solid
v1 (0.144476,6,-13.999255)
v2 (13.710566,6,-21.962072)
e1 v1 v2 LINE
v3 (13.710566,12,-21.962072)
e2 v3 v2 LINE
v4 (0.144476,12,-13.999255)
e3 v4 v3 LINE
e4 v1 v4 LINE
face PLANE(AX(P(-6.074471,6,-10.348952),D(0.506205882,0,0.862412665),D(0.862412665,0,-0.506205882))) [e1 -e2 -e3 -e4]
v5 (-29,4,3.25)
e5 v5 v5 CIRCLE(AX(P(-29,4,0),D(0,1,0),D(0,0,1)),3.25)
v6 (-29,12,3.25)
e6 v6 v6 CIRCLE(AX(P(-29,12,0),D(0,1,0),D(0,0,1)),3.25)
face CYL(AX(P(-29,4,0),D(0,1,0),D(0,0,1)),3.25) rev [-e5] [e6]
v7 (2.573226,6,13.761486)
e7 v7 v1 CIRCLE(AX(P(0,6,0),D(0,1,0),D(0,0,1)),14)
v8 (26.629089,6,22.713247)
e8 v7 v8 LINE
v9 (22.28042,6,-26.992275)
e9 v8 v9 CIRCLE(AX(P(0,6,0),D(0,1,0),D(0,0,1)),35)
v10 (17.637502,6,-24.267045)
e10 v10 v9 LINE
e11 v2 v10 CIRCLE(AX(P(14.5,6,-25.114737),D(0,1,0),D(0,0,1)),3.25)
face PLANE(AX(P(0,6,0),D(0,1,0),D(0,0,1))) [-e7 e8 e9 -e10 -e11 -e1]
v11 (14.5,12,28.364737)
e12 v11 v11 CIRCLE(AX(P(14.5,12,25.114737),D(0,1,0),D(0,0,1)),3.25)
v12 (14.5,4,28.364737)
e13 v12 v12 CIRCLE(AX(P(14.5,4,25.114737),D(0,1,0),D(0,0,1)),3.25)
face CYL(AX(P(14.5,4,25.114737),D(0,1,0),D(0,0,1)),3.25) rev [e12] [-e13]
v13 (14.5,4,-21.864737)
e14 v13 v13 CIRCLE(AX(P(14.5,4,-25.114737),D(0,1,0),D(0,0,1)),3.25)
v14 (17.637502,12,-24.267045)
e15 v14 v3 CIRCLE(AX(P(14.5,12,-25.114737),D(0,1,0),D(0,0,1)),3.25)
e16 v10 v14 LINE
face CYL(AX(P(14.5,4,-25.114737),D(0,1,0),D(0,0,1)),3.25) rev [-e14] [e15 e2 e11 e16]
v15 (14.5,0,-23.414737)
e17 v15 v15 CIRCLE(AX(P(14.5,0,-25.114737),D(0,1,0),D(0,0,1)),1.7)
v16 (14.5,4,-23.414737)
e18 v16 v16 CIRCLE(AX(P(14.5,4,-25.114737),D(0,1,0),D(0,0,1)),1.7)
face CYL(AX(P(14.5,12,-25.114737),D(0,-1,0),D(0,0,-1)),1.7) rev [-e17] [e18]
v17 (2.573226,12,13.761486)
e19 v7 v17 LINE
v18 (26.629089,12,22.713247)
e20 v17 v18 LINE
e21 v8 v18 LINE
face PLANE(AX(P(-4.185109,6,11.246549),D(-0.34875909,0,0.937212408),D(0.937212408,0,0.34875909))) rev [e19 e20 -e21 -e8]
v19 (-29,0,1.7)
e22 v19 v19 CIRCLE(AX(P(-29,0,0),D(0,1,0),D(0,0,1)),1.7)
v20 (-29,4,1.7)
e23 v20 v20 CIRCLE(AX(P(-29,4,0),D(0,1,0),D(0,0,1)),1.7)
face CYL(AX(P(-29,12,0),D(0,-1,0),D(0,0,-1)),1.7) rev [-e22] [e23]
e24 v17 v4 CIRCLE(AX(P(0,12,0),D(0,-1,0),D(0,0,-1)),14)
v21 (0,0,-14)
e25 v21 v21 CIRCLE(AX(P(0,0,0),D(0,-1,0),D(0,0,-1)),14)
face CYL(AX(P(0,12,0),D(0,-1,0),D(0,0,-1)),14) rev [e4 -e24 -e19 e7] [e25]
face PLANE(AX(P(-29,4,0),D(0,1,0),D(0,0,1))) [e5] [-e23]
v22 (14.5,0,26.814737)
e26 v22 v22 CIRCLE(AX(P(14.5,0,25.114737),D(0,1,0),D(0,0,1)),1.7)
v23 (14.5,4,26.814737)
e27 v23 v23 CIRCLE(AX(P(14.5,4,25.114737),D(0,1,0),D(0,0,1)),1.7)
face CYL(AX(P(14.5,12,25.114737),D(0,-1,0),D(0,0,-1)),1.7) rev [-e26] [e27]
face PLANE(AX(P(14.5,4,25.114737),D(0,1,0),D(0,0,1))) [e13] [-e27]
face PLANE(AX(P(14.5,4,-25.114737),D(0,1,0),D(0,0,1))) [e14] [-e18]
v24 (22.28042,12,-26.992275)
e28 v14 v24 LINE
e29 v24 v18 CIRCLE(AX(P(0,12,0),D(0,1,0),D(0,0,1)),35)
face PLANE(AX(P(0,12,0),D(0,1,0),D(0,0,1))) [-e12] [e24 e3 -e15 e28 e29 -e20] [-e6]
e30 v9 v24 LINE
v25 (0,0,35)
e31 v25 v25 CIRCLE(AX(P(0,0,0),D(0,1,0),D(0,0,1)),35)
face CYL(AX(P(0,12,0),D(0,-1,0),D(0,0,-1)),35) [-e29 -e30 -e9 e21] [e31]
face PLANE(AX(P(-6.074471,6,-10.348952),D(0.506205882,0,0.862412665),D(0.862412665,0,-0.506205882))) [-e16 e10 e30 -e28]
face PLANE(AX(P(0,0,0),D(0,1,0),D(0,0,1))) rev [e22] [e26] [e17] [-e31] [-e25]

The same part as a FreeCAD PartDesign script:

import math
import FreeCAD as App
import Part
import Sketcher

V = App.Vector
Q = App.Units.Quantity

doc = App.newDocument("Part")
body = doc.addObject("PartDesign::Body", "Body")

# Sketch on XZ plane
sketch1 = doc.addObject("Sketcher::SketchObject", "Sketch")
body.addObject(sketch1)
sketch1.AttachmentSupport = (doc.XZ_Plane, [""])
sketch1.MapMode = "FlatFace"
sketch1.addGeometry([
    Part.Circle(V(0, 0, 0), V(0, 0, 1), 35),
    Part.Circle(V(-29, 0, 0), V(0, 0, 1), 1.7),
    Part.Circle(V(14.5, -25.1, 0), V(0, 0, 1), 1.7),
    Part.Circle(V(14.5, 25.1, 0), V(0, 0, 1), 1.7),
], False)
sketch1.addConstraint([
    Sketcher.Constraint("Coincident", 0, 3, -1, 1),
    Sketcher.Constraint("Equal", 1, 2),
    Sketcher.Constraint("Equal", 2, 3),
    Sketcher.Constraint("Symmetric", 2, 3, 3, 3, -1),
    Sketcher.Constraint("PointOnObject", 1, 3, -1),
    Sketcher.Constraint("Diameter", 0, Q("70 mm")),
    Sketcher.Constraint("Diameter", 1, Q("3.4 mm")),
    Sketcher.Constraint("DistanceX", 1, 3, -1, 1, Q("29 mm")),
    Sketcher.Constraint("DistanceX", -1, 1, 2, 3, Q("14.5 mm")),
    Sketcher.Constraint("DistanceY", 2, 3, -1, 1, Q("25.114737 mm")),
])
pad1 = doc.addObject("PartDesign::Pad", "Pad")
body.addObject(pad1)
pad1.Profile = sketch1
pad1.Length = 12
pad1.Reversed = True

# Sketch on XZ plane
sketch2 = doc.addObject("Sketcher::SketchObject", "Sketch001")
body.addObject(sketch2)
sketch2.AttachmentSupport = (doc.XZ_Plane, [""])
sketch2.MapMode = "FlatFace"
sketch2.AttachmentOffset = App.Placement(V(0, 0, -12), App.Rotation())
sketch2.addGeometry([
    Part.LineSegment(V(36, -35, 0), V(-6, -10, 0)),
    Part.ArcOfCircle(Part.Circle(V(0, 0, 0), V(0, 0, 1), 12), math.radians(110), math.radians(240)),
    Part.LineSegment(V(-4, 11, 0), V(41, 28, 0)),
    Part.ArcOfCircle(Part.Circle(V(0, 0, 0), V(0, 0, 1), 50), math.radians(-44), math.radians(34)),
], False)
sketch2.addConstraint([
    Sketcher.Constraint("Tangent", 0, 2, 1, 2),
    Sketcher.Constraint("Tangent", 1, 1, 2, 1),
    Sketcher.Constraint("Coincident", 2, 2, 3, 2),
    Sketcher.Constraint("Coincident", 3, 1, 0, 1),
    Sketcher.Constraint("Coincident", 1, 3, -1, 1),
    Sketcher.Constraint("Coincident", 3, 3, -1, 1),
    Sketcher.Constraint("Radius", 1, Q("12 mm")),
    Sketcher.Constraint("Radius", 3, Q("50 mm")),
    Sketcher.Constraint("DistanceY", 3, 1, -1, 1, Q("34.919499 mm")),
    Sketcher.Constraint("DistanceY", 0, 2, 1, 1, Q("21.595501 mm")),
])
pocket1 = doc.addObject("PartDesign::Pocket", "Pocket")
body.addObject(pocket1)
pocket1.Profile = sketch2
pocket1.Length = 6
pocket1.Reversed = True

# Sketch on XZ plane
sketch3 = doc.addObject("Sketcher::SketchObject", "Sketch002")
body.addObject(sketch3)
sketch3.AttachmentSupport = (doc.XZ_Plane, [""])
sketch3.MapMode = "FlatFace"
sketch3.addGeometry(Part.Circle(V(0, 0, 0), V(0, 0, 1), 14), False)
sketch3.addConstraint([
    Sketcher.Constraint("Coincident", 0, 3, -1, 1),
    Sketcher.Constraint("Diameter", 0, Q("28 mm")),
])
pocket2 = doc.addObject("PartDesign::Pocket", "Pocket001")
body.addObject(pocket2)
pocket2.Profile = sketch3
pocket2.Type = "ThroughAll"

# Sketch on XZ plane
sketch4 = doc.addObject("Sketcher::SketchObject", "Sketch003")
body.addObject(sketch4)
sketch4.AttachmentSupport = (doc.XZ_Plane, [""])
sketch4.MapMode = "FlatFace"
sketch4.AttachmentOffset = App.Placement(V(0, 0, -12), App.Rotation())
sketch4.addGeometry([
    Part.Circle(V(14.5, -25.1, 0), V(0, 0, 1), 3.2),
    Part.Circle(V(14.5, 25.1, 0), V(0, 0, 1), 3.2),
    Part.Circle(V(-29, 0, 0), V(0, 0, 1), 3.2),
], False)
sketch4.addConstraint([
    Sketcher.Constraint("Equal", 0, 1),
    Sketcher.Constraint("Equal", 1, 2),
    Sketcher.Constraint("Symmetric", 0, 3, 1, 3, -1),
    Sketcher.Constraint("PointOnObject", 2, 3, -1),
    Sketcher.Constraint("Diameter", 0, Q("6.5 mm")),
    Sketcher.Constraint("DistanceX", 2, 3, -1, 1, Q("29 mm")),
    Sketcher.Constraint("DistanceX", -1, 1, 0, 3, Q("14.5 mm")),
    Sketcher.Constraint("DistanceY", 0, 3, -1, 1, Q("25.114737 mm")),
])
pocket3 = doc.addObject("PartDesign::Pocket", "Pocket002")
body.addObject(pocket3)
pocket3.Profile = sketch4
pocket3.Length = 8
pocket3.Reversed = True

doc.recompute()
